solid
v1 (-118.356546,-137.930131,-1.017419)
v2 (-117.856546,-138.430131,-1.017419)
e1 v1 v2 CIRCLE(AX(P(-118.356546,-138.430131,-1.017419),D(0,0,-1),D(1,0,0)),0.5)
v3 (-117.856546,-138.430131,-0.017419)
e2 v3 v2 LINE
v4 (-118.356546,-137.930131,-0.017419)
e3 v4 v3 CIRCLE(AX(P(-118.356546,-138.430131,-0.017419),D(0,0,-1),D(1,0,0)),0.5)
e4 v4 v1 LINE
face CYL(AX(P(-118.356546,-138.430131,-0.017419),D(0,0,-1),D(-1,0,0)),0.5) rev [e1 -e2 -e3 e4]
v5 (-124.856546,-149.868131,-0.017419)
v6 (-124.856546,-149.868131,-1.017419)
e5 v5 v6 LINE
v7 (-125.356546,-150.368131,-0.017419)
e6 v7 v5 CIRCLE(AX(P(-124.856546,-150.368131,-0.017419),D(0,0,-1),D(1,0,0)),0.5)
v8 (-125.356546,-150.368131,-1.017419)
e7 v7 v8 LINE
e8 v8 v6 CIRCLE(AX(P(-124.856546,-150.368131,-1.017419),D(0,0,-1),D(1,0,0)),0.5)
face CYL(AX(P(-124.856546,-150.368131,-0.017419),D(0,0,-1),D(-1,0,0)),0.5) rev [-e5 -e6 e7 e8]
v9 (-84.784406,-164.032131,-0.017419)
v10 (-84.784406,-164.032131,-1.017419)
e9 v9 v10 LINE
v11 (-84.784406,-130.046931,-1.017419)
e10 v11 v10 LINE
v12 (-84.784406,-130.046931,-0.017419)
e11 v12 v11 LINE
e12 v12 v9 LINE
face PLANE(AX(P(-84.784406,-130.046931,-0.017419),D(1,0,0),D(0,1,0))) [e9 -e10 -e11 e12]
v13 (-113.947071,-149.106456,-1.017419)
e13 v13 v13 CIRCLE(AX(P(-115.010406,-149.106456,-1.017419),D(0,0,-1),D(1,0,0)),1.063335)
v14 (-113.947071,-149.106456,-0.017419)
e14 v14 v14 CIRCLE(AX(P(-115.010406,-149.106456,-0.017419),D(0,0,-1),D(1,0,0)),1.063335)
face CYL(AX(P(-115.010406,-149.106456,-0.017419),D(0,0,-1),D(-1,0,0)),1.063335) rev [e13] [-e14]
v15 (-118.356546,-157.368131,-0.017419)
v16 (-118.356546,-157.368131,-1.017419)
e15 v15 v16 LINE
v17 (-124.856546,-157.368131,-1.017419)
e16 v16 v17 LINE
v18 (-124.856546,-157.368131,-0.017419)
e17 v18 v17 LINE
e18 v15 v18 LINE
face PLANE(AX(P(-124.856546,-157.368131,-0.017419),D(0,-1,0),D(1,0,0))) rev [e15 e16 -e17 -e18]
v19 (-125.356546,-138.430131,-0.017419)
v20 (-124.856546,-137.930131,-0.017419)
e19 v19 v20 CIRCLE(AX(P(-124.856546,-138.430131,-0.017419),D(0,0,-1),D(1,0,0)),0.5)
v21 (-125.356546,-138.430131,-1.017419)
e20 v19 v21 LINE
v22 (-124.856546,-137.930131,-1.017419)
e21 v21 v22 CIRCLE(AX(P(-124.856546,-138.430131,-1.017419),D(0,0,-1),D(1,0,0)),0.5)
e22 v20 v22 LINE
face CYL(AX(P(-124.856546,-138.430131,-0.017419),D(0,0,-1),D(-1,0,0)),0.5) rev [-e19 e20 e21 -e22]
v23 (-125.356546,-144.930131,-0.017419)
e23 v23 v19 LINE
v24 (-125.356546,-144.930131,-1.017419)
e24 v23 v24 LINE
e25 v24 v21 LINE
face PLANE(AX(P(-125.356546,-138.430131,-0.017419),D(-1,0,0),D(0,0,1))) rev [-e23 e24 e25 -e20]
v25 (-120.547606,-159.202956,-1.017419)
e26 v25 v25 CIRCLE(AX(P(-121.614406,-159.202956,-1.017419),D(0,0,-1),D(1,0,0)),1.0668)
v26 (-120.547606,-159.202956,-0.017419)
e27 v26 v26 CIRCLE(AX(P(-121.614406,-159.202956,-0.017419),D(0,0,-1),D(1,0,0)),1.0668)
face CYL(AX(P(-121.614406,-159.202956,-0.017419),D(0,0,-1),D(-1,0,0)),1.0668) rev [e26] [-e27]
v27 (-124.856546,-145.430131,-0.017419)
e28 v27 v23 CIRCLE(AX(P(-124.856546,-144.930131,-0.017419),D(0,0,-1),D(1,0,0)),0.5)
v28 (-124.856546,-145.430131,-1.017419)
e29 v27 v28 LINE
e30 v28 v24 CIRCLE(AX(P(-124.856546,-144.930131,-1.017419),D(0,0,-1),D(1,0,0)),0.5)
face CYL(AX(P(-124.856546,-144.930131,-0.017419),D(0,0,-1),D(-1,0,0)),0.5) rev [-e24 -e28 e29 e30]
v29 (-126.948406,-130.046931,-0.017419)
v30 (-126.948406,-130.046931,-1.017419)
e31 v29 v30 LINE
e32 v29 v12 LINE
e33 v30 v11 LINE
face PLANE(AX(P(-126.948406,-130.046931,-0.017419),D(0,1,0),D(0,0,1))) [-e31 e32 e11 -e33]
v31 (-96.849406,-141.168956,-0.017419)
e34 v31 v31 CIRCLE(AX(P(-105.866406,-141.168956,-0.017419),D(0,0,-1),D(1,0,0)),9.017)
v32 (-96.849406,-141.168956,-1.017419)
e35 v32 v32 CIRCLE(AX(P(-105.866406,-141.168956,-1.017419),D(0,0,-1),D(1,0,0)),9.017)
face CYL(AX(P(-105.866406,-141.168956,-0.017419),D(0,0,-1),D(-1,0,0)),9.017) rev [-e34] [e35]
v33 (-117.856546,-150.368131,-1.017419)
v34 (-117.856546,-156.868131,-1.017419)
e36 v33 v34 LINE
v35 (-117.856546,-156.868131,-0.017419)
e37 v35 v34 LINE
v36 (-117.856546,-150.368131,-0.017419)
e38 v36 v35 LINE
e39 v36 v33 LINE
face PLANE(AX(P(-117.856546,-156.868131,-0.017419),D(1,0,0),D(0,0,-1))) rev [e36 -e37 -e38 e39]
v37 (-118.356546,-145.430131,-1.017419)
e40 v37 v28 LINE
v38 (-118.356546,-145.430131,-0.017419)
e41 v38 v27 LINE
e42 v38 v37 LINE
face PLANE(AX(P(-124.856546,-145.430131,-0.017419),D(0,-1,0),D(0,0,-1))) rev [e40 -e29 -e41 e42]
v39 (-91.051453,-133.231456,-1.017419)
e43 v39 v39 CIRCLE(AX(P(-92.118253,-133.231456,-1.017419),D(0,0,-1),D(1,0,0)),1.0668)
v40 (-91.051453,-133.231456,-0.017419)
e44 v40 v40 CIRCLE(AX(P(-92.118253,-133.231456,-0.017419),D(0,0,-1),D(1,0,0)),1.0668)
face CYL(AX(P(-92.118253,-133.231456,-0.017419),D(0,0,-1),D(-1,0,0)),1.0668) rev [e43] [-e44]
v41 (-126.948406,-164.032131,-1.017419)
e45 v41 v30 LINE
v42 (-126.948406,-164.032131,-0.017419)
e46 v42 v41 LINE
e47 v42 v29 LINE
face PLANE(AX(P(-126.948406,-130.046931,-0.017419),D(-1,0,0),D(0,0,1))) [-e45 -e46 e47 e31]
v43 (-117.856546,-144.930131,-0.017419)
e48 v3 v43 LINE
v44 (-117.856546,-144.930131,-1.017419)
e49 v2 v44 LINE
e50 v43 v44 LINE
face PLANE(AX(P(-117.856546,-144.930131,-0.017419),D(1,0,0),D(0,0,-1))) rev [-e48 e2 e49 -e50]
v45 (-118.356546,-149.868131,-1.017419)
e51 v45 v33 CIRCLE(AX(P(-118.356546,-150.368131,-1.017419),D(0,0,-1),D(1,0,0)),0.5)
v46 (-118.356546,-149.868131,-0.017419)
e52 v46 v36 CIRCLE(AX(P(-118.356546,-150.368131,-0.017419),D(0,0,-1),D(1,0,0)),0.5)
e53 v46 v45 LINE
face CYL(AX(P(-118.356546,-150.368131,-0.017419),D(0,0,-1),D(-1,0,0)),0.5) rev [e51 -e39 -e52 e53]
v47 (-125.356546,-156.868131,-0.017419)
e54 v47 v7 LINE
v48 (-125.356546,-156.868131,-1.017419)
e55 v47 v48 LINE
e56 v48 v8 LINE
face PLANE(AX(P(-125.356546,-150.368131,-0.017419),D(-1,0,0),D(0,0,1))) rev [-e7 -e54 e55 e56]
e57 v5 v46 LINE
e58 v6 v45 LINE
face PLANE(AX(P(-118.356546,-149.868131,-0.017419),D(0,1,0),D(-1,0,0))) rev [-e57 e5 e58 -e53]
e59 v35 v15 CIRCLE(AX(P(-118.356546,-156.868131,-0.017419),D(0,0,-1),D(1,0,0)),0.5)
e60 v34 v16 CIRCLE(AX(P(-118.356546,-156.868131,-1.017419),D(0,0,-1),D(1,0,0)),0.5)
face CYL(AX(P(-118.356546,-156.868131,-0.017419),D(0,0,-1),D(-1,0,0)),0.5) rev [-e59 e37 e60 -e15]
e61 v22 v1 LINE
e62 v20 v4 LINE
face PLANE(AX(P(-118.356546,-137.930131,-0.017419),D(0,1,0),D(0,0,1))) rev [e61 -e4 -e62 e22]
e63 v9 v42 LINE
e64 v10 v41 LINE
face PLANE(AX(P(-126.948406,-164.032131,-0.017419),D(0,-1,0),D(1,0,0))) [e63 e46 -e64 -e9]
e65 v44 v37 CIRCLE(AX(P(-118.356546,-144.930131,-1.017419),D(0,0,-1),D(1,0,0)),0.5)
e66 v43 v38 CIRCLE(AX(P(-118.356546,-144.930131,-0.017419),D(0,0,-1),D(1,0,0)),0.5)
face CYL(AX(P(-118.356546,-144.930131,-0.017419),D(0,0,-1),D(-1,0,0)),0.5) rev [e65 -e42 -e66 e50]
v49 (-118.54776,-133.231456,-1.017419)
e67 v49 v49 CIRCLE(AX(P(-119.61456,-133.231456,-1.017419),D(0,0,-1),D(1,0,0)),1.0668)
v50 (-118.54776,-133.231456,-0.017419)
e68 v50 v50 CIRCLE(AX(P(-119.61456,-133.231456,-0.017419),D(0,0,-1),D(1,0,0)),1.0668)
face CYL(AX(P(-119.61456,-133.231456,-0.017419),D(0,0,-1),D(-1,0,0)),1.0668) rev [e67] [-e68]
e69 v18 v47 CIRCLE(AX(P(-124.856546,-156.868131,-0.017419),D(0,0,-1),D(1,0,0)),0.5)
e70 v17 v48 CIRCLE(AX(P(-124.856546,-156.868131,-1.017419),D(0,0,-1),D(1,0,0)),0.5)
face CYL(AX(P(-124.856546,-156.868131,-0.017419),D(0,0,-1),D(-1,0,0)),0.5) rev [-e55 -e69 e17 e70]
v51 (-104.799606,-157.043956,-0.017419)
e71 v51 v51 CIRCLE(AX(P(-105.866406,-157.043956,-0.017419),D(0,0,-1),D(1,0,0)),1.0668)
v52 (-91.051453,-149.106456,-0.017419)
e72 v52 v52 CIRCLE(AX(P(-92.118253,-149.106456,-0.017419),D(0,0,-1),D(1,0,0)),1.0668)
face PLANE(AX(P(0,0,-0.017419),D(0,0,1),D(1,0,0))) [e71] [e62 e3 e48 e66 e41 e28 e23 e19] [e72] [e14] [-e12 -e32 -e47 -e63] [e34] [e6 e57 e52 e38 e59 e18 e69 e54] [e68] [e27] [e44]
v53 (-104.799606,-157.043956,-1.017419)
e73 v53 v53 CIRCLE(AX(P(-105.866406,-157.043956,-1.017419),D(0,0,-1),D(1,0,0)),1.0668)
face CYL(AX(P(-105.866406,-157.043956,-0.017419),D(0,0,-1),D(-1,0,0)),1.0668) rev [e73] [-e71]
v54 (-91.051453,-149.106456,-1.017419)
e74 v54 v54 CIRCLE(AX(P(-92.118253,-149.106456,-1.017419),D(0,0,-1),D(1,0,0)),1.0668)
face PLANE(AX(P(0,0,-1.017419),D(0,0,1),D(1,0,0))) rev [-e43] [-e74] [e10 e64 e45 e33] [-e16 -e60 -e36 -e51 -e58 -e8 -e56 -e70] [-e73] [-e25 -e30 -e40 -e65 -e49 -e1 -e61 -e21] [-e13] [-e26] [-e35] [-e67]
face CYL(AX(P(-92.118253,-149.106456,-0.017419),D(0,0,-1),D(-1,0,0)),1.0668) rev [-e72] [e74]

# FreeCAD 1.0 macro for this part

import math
import FreeCAD as App
import Part
import Sketcher
Q = App.Units.Quantity

doc = App.newDocument("Part")
params = doc.addObject("Spreadsheet::Sheet", "Params")
for row, (alias, value) in enumerate([
    ("sketch1_diameter", "0.71 in"),
    ("sketch1_diameter2", "0.084 in"),
    ("sketch1_width", "1.66 in"),
    ("sketch1_height", "1.338 in"),
    ("pad1_length", "1 mm"),
], start=1):
    params.set(f"A{row}", alias)
    params.set(f"B{row}", "=" + value)
    params.setAlias(f"B{row}", alias)

body = doc.addObject("PartDesign::Body", "Body")

# Sketch on XY plane
sketch1 = body.newObject("Sketcher::SketchObject", "Sketch")
sketch1.AttachmentSupport = (doc.getObject("XY_Plane"), [""])
sketch1.MapMode = "FlatFace"
sketch1.AttachmentOffset = App.Placement(App.Vector(0, 0, -1.017419), App.Rotation())
sketch1.addGeometry([
    Part.LineSegment(App.Vector(-84.784406, -130.046931, 0), App.Vector(-84.784406, -164.032131, 0)),  # 0
    Part.LineSegment(App.Vector(-84.784406, -164.032131, 0), App.Vector(-126.948406, -164.032131, 0)),  # 1
    Part.LineSegment(App.Vector(-126.948406, -164.032131, 0), App.Vector(-126.948406, -130.046931, 0)),  # 2
    Part.LineSegment(App.Vector(-126.948406, -130.046931, 0), App.Vector(-84.784406, -130.046931, 0)),  # 3
    Part.Circle(App.Vector(-105.866406, -157.043956, 0), App.Vector(0, 0, 1), 1.0668),  # 4
    Part.Circle(App.Vector(-92.118253, -149.106456, 0), App.Vector(0, 0, 1), 1.0668),  # 5
    Part.Circle(App.Vector(-121.614406, -159.202956, 0), App.Vector(0, 0, 1), 1.0668),  # 6
    Part.ArcOfCircle(Part.Circle(App.Vector(-124.856546, -156.868131, 0), App.Vector(0, 0, 1), 0.5), math.radians(180), math.radians(270)),  # 7
    Part.LineSegment(App.Vector(-124.856546, -157.368131, 0), App.Vector(-118.356546, -157.368131, 0)),  # 8
    Part.ArcOfCircle(Part.Circle(App.Vector(-118.356546, -156.868131, 0), App.Vector(0, 0, 1), 0.5), math.radians(-90), math.radians(0)),  # 9
    Part.LineSegment(App.Vector(-117.856546, -156.868131, 0), App.Vector(-117.856546, -150.368131, 0)),  # 10
    Part.ArcOfCircle(Part.Circle(App.Vector(-118.356546, -150.368131, 0), App.Vector(0, 0, 1), 0.5), math.radians(0), math.radians(90)),  # 11
    Part.LineSegment(App.Vector(-118.356546, -149.868131, 0), App.Vector(-124.856546, -149.868131, 0)),  # 12
    Part.ArcOfCircle(Part.Circle(App.Vector(-124.856546, -150.368131, 0), App.Vector(0, 0, 1), 0.5), math.radians(90), math.radians(180)),  # 13
    Part.LineSegment(App.Vector(-125.356546, -150.368131, 0), App.Vector(-125.356546, -156.868131, 0)),  # 14
    Part.Circle(App.Vector(-115.010406, -149.106456, 0), App.Vector(0, 0, 1), 1.063335),  # 15
    Part.Circle(App.Vector(-105.866406, -141.168956, 0), App.Vector(0, 0, 1), 9.017),  # 16
    Part.Circle(App.Vector(-92.118253, -133.231456, 0), App.Vector(0, 0, 1), 1.0668),  # 17
    Part.ArcOfCircle(Part.Circle(App.Vector(-118.356546, -138.430131, 0), App.Vector(0, 0, 1), 0.5), math.radians(0), math.radians(90)),  # 18
    Part.LineSegment(App.Vector(-118.356546, -137.930131, 0), App.Vector(-124.856546, -137.930131, 0)),  # 19
    Part.ArcOfCircle(Part.Circle(App.Vector(-124.856546, -138.430131, 0), App.Vector(0, 0, 1), 0.5), math.radians(90), math.radians(180)),  # 20
    Part.LineSegment(App.Vector(-125.356546, -138.430131, 0), App.Vector(-125.356546, -144.930131, 0)),  # 21
    Part.ArcOfCircle(Part.Circle(App.Vector(-124.856546, -144.930131, 0), App.Vector(0, 0, 1), 0.5), math.radians(180), math.radians(270)),  # 22
    Part.LineSegment(App.Vector(-124.856546, -145.430131, 0), App.Vector(-118.356546, -145.430131, 0)),  # 23
    Part.ArcOfCircle(Part.Circle(App.Vector(-118.356546, -144.930131, 0), App.Vector(0, 0, 1), 0.5), math.radians(-90), math.radians(0)),  # 24
    Part.LineSegment(App.Vector(-117.856546, -144.930131, 0), App.Vector(-117.856546, -138.430131, 0)),  # 25
    Part.Circle(App.Vector(-119.61456, -133.231456, 0), App.Vector(0, 0, 1), 1.0668),  # 26
], False)
sketch1.addConstraint([
    Sketcher.Constraint("Coincident", 0, 2, 1, 1),
    Sketcher.Constraint("Coincident", 1, 2, 2, 1),
    Sketcher.Constraint("Coincident", 2, 2, 3, 1),
    Sketcher.Constraint("Coincident", 3, 2, 0, 1),
    Sketcher.Constraint("Tangent", 7, 2, 8, 1),
    Sketcher.Constraint("Tangent", 8, 2, 9, 1),
    Sketcher.Constraint("Tangent", 9, 2, 10, 1),
    Sketcher.Constraint("Tangent", 10, 2, 11, 1),
    Sketcher.Constraint("Tangent", 11, 2, 12, 1),
    Sketcher.Constraint("Tangent", 12, 2, 13, 1),
    Sketcher.Constraint("Tangent", 13, 2, 14, 1),
    Sketcher.Constraint("Tangent", 14, 2, 7, 1),
    Sketcher.Constraint("Tangent", 18, 2, 19, 1),
    Sketcher.Constraint("Tangent", 19, 2, 20, 1),
    Sketcher.Constraint("Tangent", 20, 2, 21, 1),
    Sketcher.Constraint("Tangent", 21, 2, 22, 1),
    Sketcher.Constraint("Tangent", 22, 2, 23, 1),
    Sketcher.Constraint("Tangent", 23, 2, 24, 1),
    Sketcher.Constraint("Tangent", 24, 2, 25, 1),
    Sketcher.Constraint("Tangent", 25, 2, 18, 1),
    Sketcher.Constraint("Vertical", 0),
    Sketcher.Constraint("Horizontal", 1),
    Sketcher.Constraint("Vertical", 2),
    Sketcher.Constraint("Horizontal", 3),
    Sketcher.Constraint("Horizontal", 8),
    Sketcher.Constraint("Vertical", 10),
    Sketcher.Constraint("Horizontal", 12),
    Sketcher.Constraint("Vertical", 14),
    Sketcher.Constraint("Horizontal", 19),
    Sketcher.Constraint("Vertical", 21),
    Sketcher.Constraint("Horizontal", 23),
    Sketcher.Constraint("Vertical", 25),
    Sketcher.Constraint("Equal", 4, 5),
    Sketcher.Constraint("Equal", 5, 6),
    Sketcher.Constraint("Equal", 7, 9),
    Sketcher.Constraint("Equal", 9, 11),
    Sketcher.Constraint("Equal", 11, 13),
    Sketcher.Constraint("Equal", 6, 17),
    Sketcher.Constraint("Equal", 13, 18),
    Sketcher.Constraint("Equal", 18, 20),
    Sketcher.Constraint("Equal", 20, 22),
    Sketcher.Constraint("Equal", 22, 24),
    Sketcher.Constraint("Equal", 17, 26),
    Sketcher.Constraint("Horizontal", 5, 3, 15, 3),
    Sketcher.Constraint("Horizontal", 17, 3, 26, 3),
    Sketcher.Constraint("Vertical", 4, 3, 16, 3),
    Sketcher.Constraint("Vertical", 5, 3, 17, 3),
    Sketcher.Constraint("Vertical", 11, 3, 18, 3),
    Sketcher.Constraint("Vertical", 13, 3, 20, 3),
    Sketcher.Constraint("Equal", 23, 10),
    Sketcher.Constraint("Equal", 14, 21),
    Sketcher.Constraint("Diameter", 16, Q("0.71 in")),
    Sketcher.Constraint("Diameter", 4, Q("0.084 in")),
    Sketcher.Constraint("DistanceX", 1, 2, 1, 1, Q("1.66 in")),
    Sketcher.Constraint("DistanceY", 0, 2, 0, 1, Q("1.338 in")),
    Sketcher.Constraint("Radius", 7, 0.5),
    Sketcher.Constraint("DistanceX", 6, 3, 4, 3, Q("0.62 in")),
    Sketcher.Constraint("DistanceX", 6, 3, 15, 3, Q("0.26 in")),
    Sketcher.Constraint("DistanceY", 11, 3, 18, 3, Q("0.47 in")),
    Sketcher.Constraint("DistanceX", 4, 3, 0, 2, Q("0.83 in")),
    Sketcher.Constraint("Diameter", 15, 2.12667),
    Sketcher.Constraint("DistanceY", 4, 3, 5, 3, Q("0.3125 in")),
    Sketcher.Constraint("DistanceY", 6, 3, 4, 3, Q("0.085 in")),
    Sketcher.Constraint("DistanceY", 15, 3, 16, 3, Q("0.3125 in")),
    Sketcher.Constraint("DistanceY", 16, 3, 17, 3, Q("0.3125 in")),
    Sketcher.Constraint("DistanceX", 8, 1, 8, 2, 6.5),
    Sketcher.Constraint("DistanceY", 1, 2, 7, 3, 7.164),
    Sketcher.Constraint("DistanceY", 7, 3, -1, 1, 156.868131),
    Sketcher.Constraint("DistanceX", 26, 3, -1, 1, 119.61456),
    Sketcher.Constraint("DistanceX", 7, 3, 6, 3, 3.24214),
    Sketcher.Constraint("DistanceX", 4, 3, -1, 1, 105.866406),
    Sketcher.Constraint("DistanceY", 4, 3, -1, 1, 157.043956),
    Sketcher.Constraint("DistanceX", 5, 3, -1, 1, 92.118253),
])
sketch1.setExpression("Constraints[51]", "Params.sketch1_diameter")
sketch1.setExpression("Constraints[52]", "Params.sketch1_diameter2")
sketch1.setExpression("Constraints[53]", "Params.sketch1_width")
sketch1.setExpression("Constraints[54]", "Params.sketch1_height")
pad1 = body.newObject("PartDesign::Pad", "Pad")
pad1.Profile = sketch1
pad1.setExpression("Length", "Params.pad1_length")

doc.recompute()
